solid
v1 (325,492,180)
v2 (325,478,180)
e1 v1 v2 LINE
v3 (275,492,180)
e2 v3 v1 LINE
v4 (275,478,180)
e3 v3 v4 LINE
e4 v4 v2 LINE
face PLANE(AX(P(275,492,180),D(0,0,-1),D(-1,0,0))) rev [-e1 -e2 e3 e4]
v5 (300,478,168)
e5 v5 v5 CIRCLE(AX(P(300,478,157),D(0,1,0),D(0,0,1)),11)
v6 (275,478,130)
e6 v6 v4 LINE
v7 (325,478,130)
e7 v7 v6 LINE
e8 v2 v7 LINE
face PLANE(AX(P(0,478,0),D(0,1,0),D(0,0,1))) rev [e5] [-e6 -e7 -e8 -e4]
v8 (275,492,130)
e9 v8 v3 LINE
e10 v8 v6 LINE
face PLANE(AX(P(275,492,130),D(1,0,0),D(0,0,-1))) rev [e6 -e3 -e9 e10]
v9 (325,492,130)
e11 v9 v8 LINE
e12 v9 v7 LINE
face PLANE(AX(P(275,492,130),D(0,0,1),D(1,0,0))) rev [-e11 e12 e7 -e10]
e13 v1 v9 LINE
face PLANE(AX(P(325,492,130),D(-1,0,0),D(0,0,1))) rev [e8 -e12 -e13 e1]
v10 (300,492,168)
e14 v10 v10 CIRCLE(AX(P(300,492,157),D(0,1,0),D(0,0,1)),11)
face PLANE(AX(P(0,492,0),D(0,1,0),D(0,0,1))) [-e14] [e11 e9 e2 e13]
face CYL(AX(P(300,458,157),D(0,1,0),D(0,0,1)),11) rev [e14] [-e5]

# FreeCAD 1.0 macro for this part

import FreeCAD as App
import Part
import Sketcher

V = App.Vector


def add_polygon(sketch, points):
    """Adds a closed chain of lines whose ends are joined by coincident constraints."""
    first, n = sketch.GeometryCount, len(points)
    for a, b in zip(points, points[1:] + points[:1]):
        sketch.addGeometry(Part.LineSegment(App.Vector(*a, 0), App.Vector(*b, 0)), False)
    for i in range(n):
        sketch.addConstraint(Sketcher.Constraint("Coincident", first + i, 2, first + (i + 1) % n, 1))

doc = App.newDocument("Part")
params = doc.addObject("Spreadsheet::Sheet", "Params")
for row, (alias, value) in enumerate([
    ("sketch1_width", "50 mm"),
    ("pad1_length", "14 mm"),
    ("sketch2_diameter", "22 mm"),
    ("pocket1_length", "34 mm"),
], start=1):
    params.set(f"A{row}", alias)
    params.set(f"B{row}", "=" + value)
    params.setAlias(f"B{row}", alias)

body = doc.addObject("PartDesign::Body", "Body")

# Sketch on XZ plane
sketch1 = body.newObject("Sketcher::SketchObject", "Sketch")
sketch1.AttachmentSupport = (doc.getObject("XZ_Plane"), [""])
sketch1.MapMode = "FlatFace"
sketch1.AttachmentOffset = App.Placement(V(0, 0, -478), App.Rotation())
add_polygon(sketch1, [(275, 130), (275, 180), (325, 180), (325, 130)])  # lines 0-3
sketch1.addConstraint(Sketcher.Constraint("Vertical", 0))
sketch1.addConstraint(Sketcher.Constraint("Horizontal", 1))
sketch1.addConstraint(Sketcher.Constraint("Vertical", 2))
sketch1.addConstraint(Sketcher.Constraint("Horizontal", 3))
sketch1.addConstraint(Sketcher.Constraint("Equal", 3, 0))
sketch1.addConstraint(Sketcher.Constraint("DistanceX", 1, 1, 1, 2, 50.0))
sketch1.addConstraint(Sketcher.Constraint("DistanceX", -1, 1, 0, 2, 275.0))
sketch1.addConstraint(Sketcher.Constraint("DistanceY", -1, 1, 0, 2, 180.0))
sketch1.setExpression("Constraints[9]", "Params.sketch1_width")
pad1 = body.newObject("PartDesign::Pad", "Pad")
pad1.Profile = sketch1
pad1.setExpression("Length", "Params.pad1_length")
pad1.Reversed = True

# Sketch on XZ plane
sketch2 = body.newObject("Sketcher::SketchObject", "Sketch001")
sketch2.AttachmentSupport = (doc.getObject("XZ_Plane"), [""])
sketch2.MapMode = "FlatFace"
sketch2.AttachmentOffset = App.Placement(V(0, 0, -492), App.Rotation())
sketch2.addGeometry(Part.Circle(V(300, 157, 0), V(0, 0, 1), 11), False)
sketch2.addConstraint(Sketcher.Constraint("Diameter", 0, 22.0))
sketch2.addConstraint(Sketcher.Constraint("DistanceX", -1, 1, 0, 3, 300.0))
sketch2.addConstraint(Sketcher.Constraint("DistanceY", -1, 1, 0, 3, 157.0))
sketch2.setExpression("Constraints[0]", "Params.sketch2_diameter")
pocket1 = body.newObject("PartDesign::Pocket", "Pocket")
pocket1.Profile = sketch2
pocket1.setExpression("Length", "Params.pocket1_length")
pocket1.Reversed = True

doc.recompute()
